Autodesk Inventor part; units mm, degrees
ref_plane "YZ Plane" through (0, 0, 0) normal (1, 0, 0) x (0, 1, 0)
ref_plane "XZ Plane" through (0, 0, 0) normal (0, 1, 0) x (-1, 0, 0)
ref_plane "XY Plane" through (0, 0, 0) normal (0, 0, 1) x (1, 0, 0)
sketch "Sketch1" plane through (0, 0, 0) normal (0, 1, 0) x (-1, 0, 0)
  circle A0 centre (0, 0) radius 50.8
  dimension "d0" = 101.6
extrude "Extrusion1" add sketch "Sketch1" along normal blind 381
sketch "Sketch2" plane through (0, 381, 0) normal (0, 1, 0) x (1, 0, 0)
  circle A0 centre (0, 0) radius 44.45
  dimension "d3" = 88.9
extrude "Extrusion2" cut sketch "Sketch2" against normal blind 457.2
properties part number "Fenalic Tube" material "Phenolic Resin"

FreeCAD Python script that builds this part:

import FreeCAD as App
import Part
import Sketcher
from FreeCAD import Vector
Q = App.Units.Quantity

doc = App.newDocument("Part")
body = doc.addObject("PartDesign::Body", "Body")

sketch1 = doc.addObject("Sketcher::SketchObject", "Sketch")
body.addObject(sketch1)
sketch1.AttachmentSupport = (doc.XZ_Plane, [""])
sketch1.MapMode = "FlatFace"
sketch1.addGeometry(Part.Circle(Vector(0, 0, 0), Vector(0, 0, 1), 51), False)
sketch1.addConstraint([
    Sketcher.Constraint("Coincident", 0, 3, -1, 1),
    Sketcher.Constraint("Diameter", 0, Q("4 in")),
])
pad1 = doc.addObject("PartDesign::Pad", "Pad")
body.addObject(pad1)
pad1.Profile = sketch1
pad1.Length = Q("15 in")
pad1.Reversed = True

sketch2 = doc.addObject("Sketcher::SketchObject", "Sketch001")
body.addObject(sketch2)
sketch2.AttachmentSupport = (doc.XZ_Plane, [""])
sketch2.MapMode = "FlatFace"
sketch2.AttachmentOffset = App.Placement(Vector(0, 0, -15 * 25.4), App.Rotation())
sketch2.addGeometry(Part.Circle(Vector(0, 0, 0), Vector(0, 0, 1), 44), False)
sketch2.addConstraint([
    Sketcher.Constraint("Coincident", 0, 3, -1, 1),
    Sketcher.Constraint("Diameter", 0, Q("3.5 in")),
])
pocket1 = doc.addObject("PartDesign::Pocket", "Pocket")
body.addObject(pocket1)
pocket1.Profile = sketch2
pocket1.Length = Q("18 in")
pocket1.Reversed = True

doc.recompute()
